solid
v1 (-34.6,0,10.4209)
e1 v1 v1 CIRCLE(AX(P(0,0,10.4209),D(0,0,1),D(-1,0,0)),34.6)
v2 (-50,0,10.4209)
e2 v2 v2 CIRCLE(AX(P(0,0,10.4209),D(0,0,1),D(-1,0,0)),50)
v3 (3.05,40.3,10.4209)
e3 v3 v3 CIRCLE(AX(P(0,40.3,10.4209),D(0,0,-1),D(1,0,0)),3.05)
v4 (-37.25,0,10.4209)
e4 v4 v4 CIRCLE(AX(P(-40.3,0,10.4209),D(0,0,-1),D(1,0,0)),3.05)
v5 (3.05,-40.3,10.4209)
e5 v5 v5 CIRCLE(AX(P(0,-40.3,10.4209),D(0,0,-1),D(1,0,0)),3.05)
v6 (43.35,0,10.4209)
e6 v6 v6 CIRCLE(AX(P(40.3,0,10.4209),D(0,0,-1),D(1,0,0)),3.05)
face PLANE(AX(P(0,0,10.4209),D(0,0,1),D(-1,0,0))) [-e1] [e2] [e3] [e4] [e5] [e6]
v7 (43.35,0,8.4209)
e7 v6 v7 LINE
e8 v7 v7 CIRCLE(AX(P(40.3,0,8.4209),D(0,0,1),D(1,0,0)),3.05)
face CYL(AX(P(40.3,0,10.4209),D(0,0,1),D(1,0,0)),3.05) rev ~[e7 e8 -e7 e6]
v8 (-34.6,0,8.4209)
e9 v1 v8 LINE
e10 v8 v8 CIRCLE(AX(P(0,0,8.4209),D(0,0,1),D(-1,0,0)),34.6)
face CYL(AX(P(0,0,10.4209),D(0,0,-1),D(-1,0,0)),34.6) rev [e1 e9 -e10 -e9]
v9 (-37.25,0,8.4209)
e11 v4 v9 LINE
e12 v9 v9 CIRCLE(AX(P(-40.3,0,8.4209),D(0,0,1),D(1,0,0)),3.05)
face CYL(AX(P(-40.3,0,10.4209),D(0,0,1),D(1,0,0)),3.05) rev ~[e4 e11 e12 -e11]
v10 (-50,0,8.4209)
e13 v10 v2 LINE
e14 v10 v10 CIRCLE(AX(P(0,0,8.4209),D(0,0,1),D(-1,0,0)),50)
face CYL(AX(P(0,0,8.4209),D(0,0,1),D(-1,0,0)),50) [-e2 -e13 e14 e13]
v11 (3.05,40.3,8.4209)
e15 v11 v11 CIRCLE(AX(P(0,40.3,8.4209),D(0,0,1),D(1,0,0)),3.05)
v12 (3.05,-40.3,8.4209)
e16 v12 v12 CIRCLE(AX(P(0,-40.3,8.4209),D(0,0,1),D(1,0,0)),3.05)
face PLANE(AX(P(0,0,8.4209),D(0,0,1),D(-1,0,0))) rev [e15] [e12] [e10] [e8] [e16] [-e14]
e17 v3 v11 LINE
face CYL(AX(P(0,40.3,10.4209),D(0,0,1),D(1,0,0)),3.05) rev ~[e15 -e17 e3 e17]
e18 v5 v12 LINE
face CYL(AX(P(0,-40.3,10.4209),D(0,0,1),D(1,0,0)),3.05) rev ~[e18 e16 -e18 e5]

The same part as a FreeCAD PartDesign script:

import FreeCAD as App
import Part
import Sketcher

V = App.Vector
Q = App.Units.Quantity


def add_polygon(sketch, points):
    """Adds a closed chain of lines whose ends are joined by coincident constraints."""
    first, n = sketch.GeometryCount, len(points)
    for a, b in zip(points, points[1:] + points[:1]):
        sketch.addGeometry(Part.LineSegment(App.Vector(*a, 0), App.Vector(*b, 0)), False)
    for i in range(n):
        sketch.addConstraint(Sketcher.Constraint("Coincident", first + i, 2, first + (i + 1) % n, 1))

doc = App.newDocument("Part")
body = doc.addObject("PartDesign::Body", "Body")

sketch1 = body.newObject("Sketcher::SketchObject", "Sketch")
sketch1.AttachmentSupport = (doc.getObject("XZ_Plane"), [""])
sketch1.MapMode = "FlatFace"
add_polygon(sketch1, [(-50, 10.4209), (-34.6, 10.4209), (-34.6, 8.4209), (-50, 8.4209)])
sketch1.addConstraint(Sketcher.Constraint("Horizontal", 0))
sketch1.addConstraint(Sketcher.Constraint("Vertical", 1))
sketch1.addConstraint(Sketcher.Constraint("Horizontal", 2))
sketch1.addConstraint(Sketcher.Constraint("Vertical", 3))
sketch1.addConstraint(Sketcher.Constraint("DistanceY", 1, 2, 1, 1, Q("2 mm")))
sketch1.addConstraint(Sketcher.Constraint("DistanceX", 0, 1, 0, 2, Q("15.4 mm")))
sketch1.addConstraint(Sketcher.Constraint("DistanceX", 0, 2, -1, 1, Q("34.6 mm")))
sketch1.addConstraint(Sketcher.Constraint("DistanceY", -1, 1, 0, 2, Q("10.421 mm")))
revolution = body.newObject("PartDesign::Revolution", "Revolution")
revolution.Profile = sketch1
revolution.ReferenceAxis = (sketch1, ["V_Axis"])
revolution.Angle = 360

sketch2 = body.newObject("Sketcher::SketchObject", "Sketch001")
sketch2.AttachmentSupport = (doc.getObject("XY_Plane"), [""])
sketch2.MapMode = "FlatFace"
sketch2.AttachmentOffset = App.Placement(V(0, 0, 10.4209), App.Rotation())
sketch2.addGeometry(Part.Circle(V(0, 40.3, 0), V(0, 0, 1), 3.05), False)
sketch2.addConstraint(Sketcher.Constraint("PointOnObject", 0, 3, -2))
sketch2.addConstraint(Sketcher.Constraint("Diameter", 0, Q("6.1 mm")))
sketch2.addConstraint(Sketcher.Constraint("DistanceY", -1, 1, 0, 3, Q("40.3 mm")))
pocket1 = body.newObject("PartDesign::Pocket", "Pocket")
pocket1.Profile = sketch2
pocket1.Length = 10

sketch3 = body.newObject("Sketcher::SketchObject", "Sketch002")
sketch3.AttachmentSupport = (doc.getObject("XY_Plane"), [""])
sketch3.MapMode = "FlatFace"
sketch3.AttachmentOffset = App.Placement(V(0, 0, 10.4209), App.Rotation())
sketch3.addGeometry(Part.Circle(V(40.3, 0, 0), V(0, 0, 1), 3.05), False)
sketch3.addGeometry(Part.Circle(V(-40.3, 0, 0), V(0, 0, 1), 3.05), False)
sketch3.addGeometry(Part.Circle(V(0, -40.3, 0), V(0, 0, 1), 3.05), False)
sketch3.addConstraint(Sketcher.Constraint("Equal", 0, 1))
sketch3.addConstraint(Sketcher.Constraint("Equal", 1, 2))
sketch3.addConstraint(Sketcher.Constraint("Symmetric", 0, 3, 1, 3, -1, 1))
sketch3.addConstraint(Sketcher.Constraint("PointOnObject", 0, 3, -1))
sketch3.addConstraint(Sketcher.Constraint("PointOnObject", 2, 3, -2))
sketch3.addConstraint(Sketcher.Constraint("Diameter", 0, Q("6.1 mm")))
sketch3.addConstraint(Sketcher.Constraint("DistanceX", 1, 3, 0, 3, Q("80.6 mm")))
sketch3.addConstraint(Sketcher.Constraint("DistanceY", 2, 3, -1, 1, Q("40.3 mm")))
pocket2 = body.newObject("PartDesign::Pocket", "Pocket001")
pocket2.Profile = sketch3
pocket2.Length = 10

doc.recompute()
